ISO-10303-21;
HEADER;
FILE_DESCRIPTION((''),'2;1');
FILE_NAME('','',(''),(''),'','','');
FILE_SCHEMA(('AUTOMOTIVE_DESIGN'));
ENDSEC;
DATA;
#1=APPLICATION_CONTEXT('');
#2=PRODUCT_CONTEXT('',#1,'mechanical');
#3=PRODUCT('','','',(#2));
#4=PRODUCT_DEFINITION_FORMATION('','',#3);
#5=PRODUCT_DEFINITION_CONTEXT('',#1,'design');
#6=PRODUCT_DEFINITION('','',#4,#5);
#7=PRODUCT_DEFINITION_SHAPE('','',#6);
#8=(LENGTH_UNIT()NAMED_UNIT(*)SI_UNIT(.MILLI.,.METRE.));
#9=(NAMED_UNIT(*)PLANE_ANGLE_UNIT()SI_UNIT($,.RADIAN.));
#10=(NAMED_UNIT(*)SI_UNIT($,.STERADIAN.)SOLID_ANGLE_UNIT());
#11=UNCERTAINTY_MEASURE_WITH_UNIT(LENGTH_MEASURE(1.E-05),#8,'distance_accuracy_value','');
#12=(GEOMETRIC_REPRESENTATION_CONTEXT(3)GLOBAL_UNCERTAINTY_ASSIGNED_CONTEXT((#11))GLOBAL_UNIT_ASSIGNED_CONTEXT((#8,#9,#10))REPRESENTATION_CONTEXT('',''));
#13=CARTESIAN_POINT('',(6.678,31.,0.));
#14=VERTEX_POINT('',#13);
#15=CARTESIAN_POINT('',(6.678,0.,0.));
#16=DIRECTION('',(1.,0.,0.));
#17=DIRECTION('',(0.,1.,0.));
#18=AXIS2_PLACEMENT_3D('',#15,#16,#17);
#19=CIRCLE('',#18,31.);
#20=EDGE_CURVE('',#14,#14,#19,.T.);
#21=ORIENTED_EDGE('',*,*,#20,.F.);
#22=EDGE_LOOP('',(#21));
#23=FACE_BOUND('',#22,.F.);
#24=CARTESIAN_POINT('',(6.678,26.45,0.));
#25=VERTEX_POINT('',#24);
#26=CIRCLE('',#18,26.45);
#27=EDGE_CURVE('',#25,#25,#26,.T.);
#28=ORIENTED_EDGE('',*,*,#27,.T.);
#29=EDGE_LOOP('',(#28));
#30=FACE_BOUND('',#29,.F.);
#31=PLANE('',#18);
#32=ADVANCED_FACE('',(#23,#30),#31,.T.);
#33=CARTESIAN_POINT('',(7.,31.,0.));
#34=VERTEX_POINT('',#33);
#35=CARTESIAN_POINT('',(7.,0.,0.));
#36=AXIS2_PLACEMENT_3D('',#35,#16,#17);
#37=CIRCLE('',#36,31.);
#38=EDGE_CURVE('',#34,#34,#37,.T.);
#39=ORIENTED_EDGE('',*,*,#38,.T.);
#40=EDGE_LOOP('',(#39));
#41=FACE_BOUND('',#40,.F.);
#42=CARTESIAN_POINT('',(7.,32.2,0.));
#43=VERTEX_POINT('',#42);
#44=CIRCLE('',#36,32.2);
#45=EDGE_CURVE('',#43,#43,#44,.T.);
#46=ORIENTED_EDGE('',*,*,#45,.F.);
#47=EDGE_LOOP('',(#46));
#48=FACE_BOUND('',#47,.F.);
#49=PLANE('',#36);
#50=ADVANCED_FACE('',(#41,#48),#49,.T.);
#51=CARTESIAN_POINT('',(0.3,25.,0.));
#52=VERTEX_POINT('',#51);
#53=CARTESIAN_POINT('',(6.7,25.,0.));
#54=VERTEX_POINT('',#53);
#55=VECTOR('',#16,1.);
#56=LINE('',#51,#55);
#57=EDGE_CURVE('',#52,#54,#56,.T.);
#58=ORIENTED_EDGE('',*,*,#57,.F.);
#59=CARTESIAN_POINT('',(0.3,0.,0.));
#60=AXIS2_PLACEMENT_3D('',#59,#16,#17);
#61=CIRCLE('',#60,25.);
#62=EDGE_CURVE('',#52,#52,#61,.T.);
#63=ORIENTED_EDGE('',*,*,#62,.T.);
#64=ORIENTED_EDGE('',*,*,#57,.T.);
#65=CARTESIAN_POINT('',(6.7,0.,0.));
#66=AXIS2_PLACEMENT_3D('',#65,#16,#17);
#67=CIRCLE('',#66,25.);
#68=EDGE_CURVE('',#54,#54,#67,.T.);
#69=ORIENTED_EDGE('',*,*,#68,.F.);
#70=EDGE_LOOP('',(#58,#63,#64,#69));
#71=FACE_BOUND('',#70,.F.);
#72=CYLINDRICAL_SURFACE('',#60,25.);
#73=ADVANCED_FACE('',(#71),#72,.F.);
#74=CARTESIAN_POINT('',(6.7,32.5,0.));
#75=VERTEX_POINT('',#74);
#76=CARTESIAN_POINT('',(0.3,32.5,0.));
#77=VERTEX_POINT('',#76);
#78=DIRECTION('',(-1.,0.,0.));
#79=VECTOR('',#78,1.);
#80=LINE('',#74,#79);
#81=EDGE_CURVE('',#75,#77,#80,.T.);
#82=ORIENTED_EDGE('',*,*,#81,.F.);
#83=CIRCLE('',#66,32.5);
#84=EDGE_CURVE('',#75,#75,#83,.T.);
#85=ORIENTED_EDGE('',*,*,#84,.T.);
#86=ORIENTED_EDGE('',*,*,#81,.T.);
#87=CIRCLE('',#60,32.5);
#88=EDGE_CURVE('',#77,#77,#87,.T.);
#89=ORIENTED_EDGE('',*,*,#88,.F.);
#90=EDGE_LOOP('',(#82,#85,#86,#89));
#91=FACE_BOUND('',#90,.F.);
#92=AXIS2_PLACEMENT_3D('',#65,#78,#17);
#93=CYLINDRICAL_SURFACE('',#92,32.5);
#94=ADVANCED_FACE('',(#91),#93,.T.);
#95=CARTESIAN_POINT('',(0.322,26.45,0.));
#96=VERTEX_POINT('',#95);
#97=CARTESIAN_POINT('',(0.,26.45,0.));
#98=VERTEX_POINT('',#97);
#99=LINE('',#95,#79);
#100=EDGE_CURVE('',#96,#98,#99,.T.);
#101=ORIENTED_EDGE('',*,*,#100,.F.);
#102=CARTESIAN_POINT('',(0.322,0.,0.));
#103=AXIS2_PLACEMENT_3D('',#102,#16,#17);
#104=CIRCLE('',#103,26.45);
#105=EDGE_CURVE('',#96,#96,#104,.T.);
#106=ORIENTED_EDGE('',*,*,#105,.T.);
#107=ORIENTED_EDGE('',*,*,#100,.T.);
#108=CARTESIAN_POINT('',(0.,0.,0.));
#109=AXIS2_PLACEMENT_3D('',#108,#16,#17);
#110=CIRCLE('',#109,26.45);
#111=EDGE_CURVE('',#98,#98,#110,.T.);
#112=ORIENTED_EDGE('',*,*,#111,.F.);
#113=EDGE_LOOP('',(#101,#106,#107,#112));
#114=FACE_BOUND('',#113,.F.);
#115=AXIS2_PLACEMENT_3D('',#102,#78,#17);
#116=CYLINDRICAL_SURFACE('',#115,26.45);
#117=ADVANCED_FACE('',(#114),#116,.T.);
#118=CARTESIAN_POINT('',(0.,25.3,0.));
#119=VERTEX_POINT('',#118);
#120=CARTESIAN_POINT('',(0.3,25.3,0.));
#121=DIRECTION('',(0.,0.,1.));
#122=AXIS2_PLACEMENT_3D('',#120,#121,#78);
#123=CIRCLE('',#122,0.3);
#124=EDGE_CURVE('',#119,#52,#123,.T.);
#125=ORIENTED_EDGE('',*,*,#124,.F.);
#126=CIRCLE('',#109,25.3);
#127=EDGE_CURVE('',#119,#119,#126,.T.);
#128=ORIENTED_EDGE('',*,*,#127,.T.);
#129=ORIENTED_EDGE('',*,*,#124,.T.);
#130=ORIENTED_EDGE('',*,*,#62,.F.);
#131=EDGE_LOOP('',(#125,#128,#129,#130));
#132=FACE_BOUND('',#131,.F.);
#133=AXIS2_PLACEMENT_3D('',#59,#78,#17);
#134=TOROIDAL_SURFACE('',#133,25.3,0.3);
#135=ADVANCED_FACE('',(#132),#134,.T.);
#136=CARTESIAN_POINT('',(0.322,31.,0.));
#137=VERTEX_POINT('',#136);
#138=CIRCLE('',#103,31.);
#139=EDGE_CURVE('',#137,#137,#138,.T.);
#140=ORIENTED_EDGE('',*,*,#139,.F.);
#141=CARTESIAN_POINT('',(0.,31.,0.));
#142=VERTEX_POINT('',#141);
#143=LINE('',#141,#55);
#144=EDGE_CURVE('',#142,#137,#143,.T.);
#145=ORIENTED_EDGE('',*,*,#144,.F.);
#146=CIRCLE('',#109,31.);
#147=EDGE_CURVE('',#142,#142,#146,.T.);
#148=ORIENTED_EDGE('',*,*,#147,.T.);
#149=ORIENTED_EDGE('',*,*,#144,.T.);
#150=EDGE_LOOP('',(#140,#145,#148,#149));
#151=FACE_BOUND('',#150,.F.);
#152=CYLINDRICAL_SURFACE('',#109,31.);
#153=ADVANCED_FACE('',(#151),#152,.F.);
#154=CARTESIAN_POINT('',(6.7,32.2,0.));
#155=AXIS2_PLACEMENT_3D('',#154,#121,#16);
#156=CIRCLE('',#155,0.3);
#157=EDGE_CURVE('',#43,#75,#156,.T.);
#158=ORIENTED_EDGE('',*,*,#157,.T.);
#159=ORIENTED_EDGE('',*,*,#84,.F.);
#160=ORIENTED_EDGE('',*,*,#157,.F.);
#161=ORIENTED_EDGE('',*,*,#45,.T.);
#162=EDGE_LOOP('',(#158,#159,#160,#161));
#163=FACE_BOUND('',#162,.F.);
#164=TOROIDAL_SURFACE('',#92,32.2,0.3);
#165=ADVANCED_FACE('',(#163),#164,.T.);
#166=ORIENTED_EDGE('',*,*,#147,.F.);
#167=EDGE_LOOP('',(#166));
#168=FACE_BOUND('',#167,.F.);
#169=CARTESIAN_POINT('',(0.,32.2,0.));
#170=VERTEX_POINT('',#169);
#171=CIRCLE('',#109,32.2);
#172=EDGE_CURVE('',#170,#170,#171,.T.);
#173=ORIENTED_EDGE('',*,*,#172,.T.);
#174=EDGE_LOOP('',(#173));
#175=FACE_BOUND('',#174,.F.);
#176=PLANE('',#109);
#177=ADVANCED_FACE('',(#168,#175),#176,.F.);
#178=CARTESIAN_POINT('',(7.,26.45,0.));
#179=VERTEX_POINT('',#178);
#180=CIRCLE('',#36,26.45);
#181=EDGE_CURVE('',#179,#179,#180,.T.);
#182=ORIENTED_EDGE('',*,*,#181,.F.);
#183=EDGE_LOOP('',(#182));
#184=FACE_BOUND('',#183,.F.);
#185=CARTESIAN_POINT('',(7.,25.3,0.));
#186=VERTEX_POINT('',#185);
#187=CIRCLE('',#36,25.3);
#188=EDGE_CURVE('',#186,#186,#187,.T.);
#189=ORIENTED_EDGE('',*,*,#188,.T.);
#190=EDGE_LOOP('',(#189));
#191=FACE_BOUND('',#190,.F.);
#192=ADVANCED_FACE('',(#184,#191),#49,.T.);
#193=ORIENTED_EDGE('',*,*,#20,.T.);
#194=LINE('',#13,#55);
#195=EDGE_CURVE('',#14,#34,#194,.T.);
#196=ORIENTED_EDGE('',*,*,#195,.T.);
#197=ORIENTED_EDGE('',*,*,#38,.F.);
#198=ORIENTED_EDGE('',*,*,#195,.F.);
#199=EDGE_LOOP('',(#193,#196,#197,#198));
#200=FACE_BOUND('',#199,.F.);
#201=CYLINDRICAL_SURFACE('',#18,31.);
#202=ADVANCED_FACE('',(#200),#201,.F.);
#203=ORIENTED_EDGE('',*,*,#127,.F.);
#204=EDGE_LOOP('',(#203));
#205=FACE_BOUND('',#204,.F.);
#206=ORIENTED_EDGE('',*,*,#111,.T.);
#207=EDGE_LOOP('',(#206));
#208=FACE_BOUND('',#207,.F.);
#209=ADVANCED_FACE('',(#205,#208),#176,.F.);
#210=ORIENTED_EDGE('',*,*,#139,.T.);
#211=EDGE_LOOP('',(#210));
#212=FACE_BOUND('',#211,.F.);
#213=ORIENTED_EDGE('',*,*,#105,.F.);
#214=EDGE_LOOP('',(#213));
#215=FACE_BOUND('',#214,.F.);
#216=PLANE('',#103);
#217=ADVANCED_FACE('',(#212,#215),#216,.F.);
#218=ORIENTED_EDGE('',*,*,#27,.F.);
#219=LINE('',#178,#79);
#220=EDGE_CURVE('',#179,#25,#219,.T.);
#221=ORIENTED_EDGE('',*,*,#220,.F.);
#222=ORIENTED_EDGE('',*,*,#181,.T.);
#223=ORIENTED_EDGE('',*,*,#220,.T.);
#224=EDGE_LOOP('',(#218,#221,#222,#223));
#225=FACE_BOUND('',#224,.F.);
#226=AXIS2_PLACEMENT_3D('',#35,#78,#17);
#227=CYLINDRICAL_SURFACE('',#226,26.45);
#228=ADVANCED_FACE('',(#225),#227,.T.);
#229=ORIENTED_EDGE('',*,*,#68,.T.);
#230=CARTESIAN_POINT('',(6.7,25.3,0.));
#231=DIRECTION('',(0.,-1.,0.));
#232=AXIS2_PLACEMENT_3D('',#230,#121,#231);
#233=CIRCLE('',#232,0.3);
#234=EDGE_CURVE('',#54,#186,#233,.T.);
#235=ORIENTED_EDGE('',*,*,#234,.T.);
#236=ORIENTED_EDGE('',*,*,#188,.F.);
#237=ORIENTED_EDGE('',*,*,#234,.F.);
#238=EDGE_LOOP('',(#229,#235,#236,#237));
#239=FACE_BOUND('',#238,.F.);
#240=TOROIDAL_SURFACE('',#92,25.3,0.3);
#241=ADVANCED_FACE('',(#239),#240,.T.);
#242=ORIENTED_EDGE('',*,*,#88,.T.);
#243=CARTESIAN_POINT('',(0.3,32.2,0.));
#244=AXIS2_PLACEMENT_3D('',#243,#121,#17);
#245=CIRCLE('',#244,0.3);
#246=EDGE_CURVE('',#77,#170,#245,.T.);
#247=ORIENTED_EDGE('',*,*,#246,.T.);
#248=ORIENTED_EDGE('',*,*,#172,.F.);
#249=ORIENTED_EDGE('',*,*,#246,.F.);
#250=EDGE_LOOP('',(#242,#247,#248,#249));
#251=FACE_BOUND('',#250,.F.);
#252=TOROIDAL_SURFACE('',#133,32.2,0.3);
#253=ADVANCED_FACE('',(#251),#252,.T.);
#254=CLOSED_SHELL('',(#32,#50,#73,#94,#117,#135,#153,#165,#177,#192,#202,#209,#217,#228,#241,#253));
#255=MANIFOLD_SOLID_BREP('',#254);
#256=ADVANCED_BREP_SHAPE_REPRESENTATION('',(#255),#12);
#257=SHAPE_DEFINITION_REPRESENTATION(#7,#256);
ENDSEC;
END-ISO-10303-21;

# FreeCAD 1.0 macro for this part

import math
import FreeCAD as App
import Part
import Sketcher
from FreeCAD import Vector
Q = App.Units.Quantity

doc = App.newDocument("Part")
body = doc.addObject("PartDesign::Body", "Body")

sketch1 = doc.addObject("Sketcher::SketchObject", "Sketch")
body.addObject(sketch1)
sketch1.AttachmentSupport = (doc.XY_Plane, [""])
sketch1.MapMode = "FlatFace"
sketch1.addGeometry([
    Part.LineSegment(Vector(0, 26.45, 0), Vector(0, 25.3, 0)),
    Part.ArcOfCircle(Part.Circle(Vector(0.3, 25.3, 0), Vector(0, 0, 1), 0.3), math.radians(180), math.radians(270)),
    Part.LineSegment(Vector(0.3, 25, 0), Vector(6.7, 25, 0)),
    Part.ArcOfCircle(Part.Circle(Vector(6.7, 25.3, 0), Vector(0, 0, 1), 0.3), math.radians(-90), math.radians(0)),
    Part.LineSegment(Vector(7, 25.3, 0), Vector(7, 26.45, 0)),
    Part.LineSegment(Vector(7, 26.45, 0), Vector(6.678, 26.45, 0)),
    Part.LineSegment(Vector(6.678, 26.45, 0), Vector(6.678, 31, 0)),
    Part.LineSegment(Vector(6.678, 31, 0), Vector(7, 31, 0)),
    Part.LineSegment(Vector(7, 31, 0), Vector(7, 32.2, 0)),
    Part.ArcOfCircle(Part.Circle(Vector(6.7, 32.2, 0), Vector(0, 0, 1), 0.3), math.radians(0), math.radians(90)),
    Part.LineSegment(Vector(6.7, 32.5, 0), Vector(0.3, 32.5, 0)),
    Part.ArcOfCircle(Part.Circle(Vector(0.3, 32.2, 0), Vector(0, 0, 1), 0.3), math.radians(90), math.radians(180)),
    Part.LineSegment(Vector(0, 32.2, 0), Vector(0, 31, 0)),
    Part.LineSegment(Vector(0, 31, 0), Vector(0.322, 31, 0)),
    Part.LineSegment(Vector(0.322, 31, 0), Vector(0.322, 26.45, 0)),
    Part.LineSegment(Vector(0.322, 26.45, 0), Vector(0, 26.45, 0)),
], False)
sketch1.addConstraint([
    Sketcher.Constraint("Tangent", 0, 2, 1, 1),
    Sketcher.Constraint("Tangent", 1, 2, 2, 1),
    Sketcher.Constraint("Tangent", 2, 2, 3, 1),
    Sketcher.Constraint("Tangent", 3, 2, 4, 1),
    Sketcher.Constraint("Coincident", 4, 2, 5, 1),
    Sketcher.Constraint("Coincident", 5, 2, 6, 1),
    Sketcher.Constraint("Coincident", 6, 2, 7, 1),
    Sketcher.Constraint("Coincident", 7, 2, 8, 1),
    Sketcher.Constraint("Tangent", 8, 2, 9, 1),
    Sketcher.Constraint("Tangent", 9, 2, 10, 1),
    Sketcher.Constraint("Tangent", 10, 2, 11, 1),
    Sketcher.Constraint("Tangent", 11, 2, 12, 1),
    Sketcher.Constraint("Coincident", 12, 2, 13, 1),
    Sketcher.Constraint("Coincident", 13, 2, 14, 1),
    Sketcher.Constraint("Coincident", 14, 2, 15, 1),
    Sketcher.Constraint("Coincident", 15, 2, 0, 1),
    Sketcher.Constraint("Vertical", 0),
    Sketcher.Constraint("Horizontal", 2),
    Sketcher.Constraint("Vertical", 4),
    Sketcher.Constraint("Horizontal", 5),
    Sketcher.Constraint("Vertical", 6),
    Sketcher.Constraint("Horizontal", 7),
    Sketcher.Constraint("Vertical", 8),
    Sketcher.Constraint("Horizontal", 10),
    Sketcher.Constraint("Vertical", 12),
    Sketcher.Constraint("Horizontal", 13),
    Sketcher.Constraint("Vertical", 14),
    Sketcher.Constraint("Horizontal", 15),
    Sketcher.Constraint("Equal", 1, 3),
    Sketcher.Constraint("Equal", 3, 9),
    Sketcher.Constraint("Equal", 9, 11),
    Sketcher.Constraint("PointOnObject", 0, 2, -2),
    Sketcher.Constraint("PointOnObject", 11, 2, -2),
    Sketcher.Constraint("Horizontal", 7, 2, 12, 2),
    Sketcher.Constraint("Horizontal", 5, 2, 14, 2),
    Sketcher.Constraint("Vertical", 3, 3, 9, 3),
    Sketcher.Constraint("Equal", 7, 13),
    Sketcher.Constraint("Radius", 1, Q("0.3 mm")),
    Sketcher.Constraint("DistanceX", 2, 1, 2, 2, Q("6.4 mm")),
    Sketcher.Constraint("DistanceY", 8, 1, 8, 2, Q("1.2 mm")),
    Sketcher.Constraint("DistanceY", -1, 1, 1, 2, Q("25 mm")),
    Sketcher.Constraint("DistanceY", -1, 1, 6, 2, Q("31 mm")),
    Sketcher.Constraint("DistanceY", 0, 2, 0, 1, Q("1.15 mm")),
    Sketcher.Constraint("DistanceX", 5, 2, 5, 1, Q("0.322 mm")),
])
revolution = doc.addObject("PartDesign::Revolution", "Revolution")
body.addObject(revolution)
revolution.Profile = sketch1
revolution.ReferenceAxis = (sketch1, ["H_Axis"])
revolution.Angle = 360

doc.recompute()
